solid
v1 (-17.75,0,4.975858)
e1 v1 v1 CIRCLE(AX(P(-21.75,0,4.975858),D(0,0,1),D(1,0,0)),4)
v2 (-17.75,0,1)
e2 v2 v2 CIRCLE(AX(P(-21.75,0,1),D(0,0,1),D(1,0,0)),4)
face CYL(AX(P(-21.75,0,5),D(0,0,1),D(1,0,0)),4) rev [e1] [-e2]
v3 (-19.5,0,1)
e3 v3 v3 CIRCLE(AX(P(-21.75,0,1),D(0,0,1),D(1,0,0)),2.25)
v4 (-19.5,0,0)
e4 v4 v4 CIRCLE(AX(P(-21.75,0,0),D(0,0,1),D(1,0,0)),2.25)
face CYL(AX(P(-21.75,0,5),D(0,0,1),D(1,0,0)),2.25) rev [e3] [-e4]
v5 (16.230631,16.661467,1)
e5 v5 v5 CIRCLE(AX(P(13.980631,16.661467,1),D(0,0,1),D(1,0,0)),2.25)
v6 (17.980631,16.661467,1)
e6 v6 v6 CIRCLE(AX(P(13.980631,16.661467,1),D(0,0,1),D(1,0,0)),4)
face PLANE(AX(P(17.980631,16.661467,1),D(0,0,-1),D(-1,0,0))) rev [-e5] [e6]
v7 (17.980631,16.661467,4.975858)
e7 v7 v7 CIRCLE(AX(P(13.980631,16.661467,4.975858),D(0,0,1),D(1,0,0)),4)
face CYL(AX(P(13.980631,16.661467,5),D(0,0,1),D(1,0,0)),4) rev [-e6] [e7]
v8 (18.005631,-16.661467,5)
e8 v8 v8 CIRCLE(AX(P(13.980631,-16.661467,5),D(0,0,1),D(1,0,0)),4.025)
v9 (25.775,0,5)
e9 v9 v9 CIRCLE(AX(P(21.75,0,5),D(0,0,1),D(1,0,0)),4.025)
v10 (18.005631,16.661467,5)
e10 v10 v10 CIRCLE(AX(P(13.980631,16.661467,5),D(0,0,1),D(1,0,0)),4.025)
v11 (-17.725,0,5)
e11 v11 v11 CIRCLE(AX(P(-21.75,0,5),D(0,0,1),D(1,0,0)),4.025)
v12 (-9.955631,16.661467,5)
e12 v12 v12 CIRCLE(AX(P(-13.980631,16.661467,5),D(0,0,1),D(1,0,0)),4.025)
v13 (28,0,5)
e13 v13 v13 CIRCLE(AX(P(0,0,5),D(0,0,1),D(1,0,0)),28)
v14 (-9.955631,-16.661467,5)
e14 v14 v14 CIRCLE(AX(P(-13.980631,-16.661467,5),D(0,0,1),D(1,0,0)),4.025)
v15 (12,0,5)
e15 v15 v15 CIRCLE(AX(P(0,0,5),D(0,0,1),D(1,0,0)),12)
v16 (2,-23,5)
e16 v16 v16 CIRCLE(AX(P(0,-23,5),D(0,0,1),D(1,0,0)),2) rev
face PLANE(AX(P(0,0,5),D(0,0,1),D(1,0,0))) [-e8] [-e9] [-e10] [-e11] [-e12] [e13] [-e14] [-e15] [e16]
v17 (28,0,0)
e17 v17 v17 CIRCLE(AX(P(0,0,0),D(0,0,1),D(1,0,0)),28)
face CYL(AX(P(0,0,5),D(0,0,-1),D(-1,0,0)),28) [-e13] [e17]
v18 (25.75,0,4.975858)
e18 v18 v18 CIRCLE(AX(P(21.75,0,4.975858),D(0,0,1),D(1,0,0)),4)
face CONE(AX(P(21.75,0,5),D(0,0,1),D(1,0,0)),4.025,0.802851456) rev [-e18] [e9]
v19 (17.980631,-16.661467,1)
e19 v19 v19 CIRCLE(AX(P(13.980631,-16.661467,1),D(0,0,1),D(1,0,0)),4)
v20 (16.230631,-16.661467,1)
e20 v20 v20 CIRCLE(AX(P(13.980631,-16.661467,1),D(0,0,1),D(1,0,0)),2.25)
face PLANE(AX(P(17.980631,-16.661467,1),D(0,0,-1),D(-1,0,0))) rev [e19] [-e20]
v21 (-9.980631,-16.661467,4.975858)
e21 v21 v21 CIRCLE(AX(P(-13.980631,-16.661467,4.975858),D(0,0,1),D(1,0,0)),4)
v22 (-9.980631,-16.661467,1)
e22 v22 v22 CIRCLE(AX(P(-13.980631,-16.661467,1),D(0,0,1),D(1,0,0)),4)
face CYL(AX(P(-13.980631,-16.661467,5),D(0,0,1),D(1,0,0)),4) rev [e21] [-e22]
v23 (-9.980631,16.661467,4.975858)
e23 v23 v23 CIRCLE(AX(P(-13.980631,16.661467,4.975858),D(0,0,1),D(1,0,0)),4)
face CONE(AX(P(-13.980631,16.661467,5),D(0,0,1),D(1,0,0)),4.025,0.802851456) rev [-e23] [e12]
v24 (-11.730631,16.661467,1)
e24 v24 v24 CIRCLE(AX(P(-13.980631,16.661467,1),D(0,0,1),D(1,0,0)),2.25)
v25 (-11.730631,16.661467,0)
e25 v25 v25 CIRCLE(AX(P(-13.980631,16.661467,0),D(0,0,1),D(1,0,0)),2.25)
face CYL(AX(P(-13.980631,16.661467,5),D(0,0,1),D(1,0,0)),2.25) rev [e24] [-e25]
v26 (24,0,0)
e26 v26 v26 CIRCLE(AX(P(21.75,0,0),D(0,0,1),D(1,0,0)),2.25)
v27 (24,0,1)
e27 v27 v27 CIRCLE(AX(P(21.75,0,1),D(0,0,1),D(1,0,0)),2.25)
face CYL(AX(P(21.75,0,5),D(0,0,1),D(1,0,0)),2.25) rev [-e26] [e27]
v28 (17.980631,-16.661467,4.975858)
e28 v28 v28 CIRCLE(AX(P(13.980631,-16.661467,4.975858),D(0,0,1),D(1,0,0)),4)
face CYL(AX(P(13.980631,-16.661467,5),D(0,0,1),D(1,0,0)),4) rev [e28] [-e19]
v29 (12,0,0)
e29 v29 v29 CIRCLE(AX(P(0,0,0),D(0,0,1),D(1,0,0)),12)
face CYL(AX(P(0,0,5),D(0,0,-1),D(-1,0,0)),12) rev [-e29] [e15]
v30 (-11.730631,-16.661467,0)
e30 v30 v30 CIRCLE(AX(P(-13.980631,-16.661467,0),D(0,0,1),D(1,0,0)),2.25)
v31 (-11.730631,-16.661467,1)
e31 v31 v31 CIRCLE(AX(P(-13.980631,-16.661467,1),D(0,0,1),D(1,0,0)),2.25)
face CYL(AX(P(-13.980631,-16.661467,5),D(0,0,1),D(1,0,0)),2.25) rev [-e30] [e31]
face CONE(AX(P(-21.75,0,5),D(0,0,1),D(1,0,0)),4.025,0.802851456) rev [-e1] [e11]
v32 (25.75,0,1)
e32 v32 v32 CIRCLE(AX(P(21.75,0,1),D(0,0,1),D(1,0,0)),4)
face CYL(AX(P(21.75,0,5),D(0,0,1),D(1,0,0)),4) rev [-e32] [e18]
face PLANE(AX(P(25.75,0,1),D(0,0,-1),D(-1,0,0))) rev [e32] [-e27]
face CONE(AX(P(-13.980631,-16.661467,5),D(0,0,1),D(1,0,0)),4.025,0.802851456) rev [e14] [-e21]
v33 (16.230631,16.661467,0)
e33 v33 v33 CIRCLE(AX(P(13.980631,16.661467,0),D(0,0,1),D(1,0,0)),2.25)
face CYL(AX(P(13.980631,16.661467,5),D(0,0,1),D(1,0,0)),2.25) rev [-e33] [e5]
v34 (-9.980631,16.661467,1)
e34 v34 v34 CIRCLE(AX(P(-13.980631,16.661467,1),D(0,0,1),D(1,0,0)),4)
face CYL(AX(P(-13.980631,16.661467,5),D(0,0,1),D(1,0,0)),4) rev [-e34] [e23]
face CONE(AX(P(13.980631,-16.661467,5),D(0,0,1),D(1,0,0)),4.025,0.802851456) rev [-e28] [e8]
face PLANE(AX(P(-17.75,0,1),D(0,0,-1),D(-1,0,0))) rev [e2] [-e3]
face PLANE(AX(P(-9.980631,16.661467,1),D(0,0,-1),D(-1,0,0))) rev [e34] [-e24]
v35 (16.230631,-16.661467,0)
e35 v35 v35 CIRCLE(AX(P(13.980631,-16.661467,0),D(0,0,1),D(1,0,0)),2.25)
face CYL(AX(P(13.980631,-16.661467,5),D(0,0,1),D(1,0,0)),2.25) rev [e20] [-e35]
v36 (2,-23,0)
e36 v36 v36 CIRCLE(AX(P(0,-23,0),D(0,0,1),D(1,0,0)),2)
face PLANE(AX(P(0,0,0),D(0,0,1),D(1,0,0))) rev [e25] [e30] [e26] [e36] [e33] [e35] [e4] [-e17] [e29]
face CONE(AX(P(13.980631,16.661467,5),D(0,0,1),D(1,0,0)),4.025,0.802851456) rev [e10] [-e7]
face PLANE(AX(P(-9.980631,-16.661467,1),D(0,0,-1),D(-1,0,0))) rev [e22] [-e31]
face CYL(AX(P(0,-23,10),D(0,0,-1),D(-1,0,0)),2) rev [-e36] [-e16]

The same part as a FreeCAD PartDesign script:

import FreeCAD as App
import Part
import Sketcher
from FreeCAD import Vector
Q = App.Units.Quantity


def add_polygon(sketch, points):
    """Adds a closed chain of lines whose ends are joined by coincident constraints."""
    first, n = sketch.GeometryCount, len(points)
    for a, b in zip(points, points[1:] + points[:1]):
        sketch.addGeometry(Part.LineSegment(App.Vector(*a, 0), App.Vector(*b, 0)), False)
    for i in range(n):
        sketch.addConstraint(Sketcher.Constraint("Coincident", first + i, 2, first + (i + 1) % n, 1))

doc = App.newDocument("Part")
body = doc.addObject("PartDesign::Body", "Body")

# Sketch on XY plane
sketch1 = body.newObject("Sketcher::SketchObject", "Sketch")
sketch1.AttachmentSupport = (doc.getObject("XY_Plane"), [""])
sketch1.MapMode = "FlatFace"
sketch1.addGeometry([
    Part.Circle(Vector(0, 0, 0), Vector(0, 0, 1), 28),
    Part.Circle(Vector(0, 0, 0), Vector(0, 0, 1), 12),
], False)
sketch1.addConstraint([
    Sketcher.Constraint("Coincident", 0, 3, -1, 1),
    Sketcher.Constraint("Coincident", 1, 3, -1, 1),
    Sketcher.Constraint("Diameter", 0, 56.0),
    Sketcher.Constraint("Diameter", 1, 24.0),
])
pad1 = body.newObject("PartDesign::Pad", "Pad")
pad1.Profile = sketch1
pad1.Length = 5

# Sketch on YZ plane
sketch2 = body.newObject("Sketcher::SketchObject", "Sketch001")
sketch2.AttachmentSupport = (doc.getObject("YZ_Plane"), [""])
sketch2.MapMode = "FlatFace"
sketch2.AttachmentOffset = App.Placement(Vector(0, 0, 21.75), App.Rotation())
add_polygon(sketch2, [(0, 0), (0, 5), (-4.025, 5), (-4, 4.975858), (-4, 1), (-2.25, 1), (-2.25, 0)])  # lines 0-6
sketch2.addConstraint([
    Sketcher.Constraint("Vertical", 0),
    Sketcher.Constraint("Horizontal", 1),
    Sketcher.Constraint("Vertical", 3),
    Sketcher.Constraint("Horizontal", 4),
    Sketcher.Constraint("Vertical", 5),
    Sketcher.Constraint("Horizontal", 6),
    Sketcher.Constraint("Coincident", 6, 2, -1, 1),
    Sketcher.Constraint("DistanceY", 0, 1, 0, 2, 5.0),
    Sketcher.Constraint("DistanceY", 5, 2, 5, 1, 1.0),
    Sketcher.Constraint("Angle", 2, Q("-44 deg")),
    Sketcher.Constraint("DistanceX", 2, 2, -1, 1, 4.0),
    Sketcher.Constraint("DistanceX", 4, 1, 4, 2, 1.75),
    Sketcher.Constraint("DistanceX", 1, 2, 1, 1, 4.025),
])
groove = body.newObject("PartDesign::Groove", "Groove")
groove.Profile = sketch2
groove.ReferenceAxis = (sketch2, ["V_Axis"])
groove.Angle = 360
doc.recompute()

datumline = body.newObject("PartDesign::Line", "DatumLine")
datumline.Placement = App.Placement(Vector(0, 0, 0), App.Rotation(Vector(0, 0, 1), Vector(-0.906307787, 0.422618262, 0)))
linearpattern = body.newObject("PartDesign::LinearPattern", "LinearPattern")
linearpattern.Originals = [groove]
linearpattern.Direction = (datumline, [""])
linearpattern.Mode = "offset"
linearpattern.Offset = 39.424389
linearpattern.Occurrences = 2
body.Tip = linearpattern
doc.recompute()

datumline2 = body.newObject("PartDesign::Line", "DatumLine001")
datumline2.Placement = App.Placement(Vector(0, 0, 0), App.Rotation(Vector(0, 0, 1), Vector(-0.906307787, 0.422618262, 0)))
linearpattern2 = body.newObject("PartDesign::LinearPattern", "LinearPattern001")
linearpattern2.Originals = [groove]
linearpattern2.Direction = (datumline2, [""])
linearpattern2.Mode = "offset"
linearpattern2.Offset = 39.424389
linearpattern2.Occurrences = 2
body.Tip = linearpattern2
doc.recompute()

datumline3 = body.newObject("PartDesign::Line", "DatumLine002")
datumline3.Placement = App.Placement(Vector(0, 0, 0), App.Rotation(Vector(0, 0, 1), Vector(-0.422618262, -0.906307787, 0)))
linearpattern3 = body.newObject("PartDesign::LinearPattern", "LinearPattern002")
linearpattern3.Originals = [groove]
linearpattern3.Direction = (datumline3, [""])
linearpattern3.Mode = "offset"
linearpattern3.Offset = 18.383894
linearpattern3.Occurrences = 2
body.Tip = linearpattern3
doc.recompute()

datumline4 = body.newObject("PartDesign::Line", "DatumLine003")
datumline4.Placement = App.Placement(Vector(0, 0, 0), App.Rotation(Vector(0, 0, 1), Vector(-0.906307787, -0.422618262, 0)))
linearpattern4 = body.newObject("PartDesign::LinearPattern", "LinearPattern003")
linearpattern4.Originals = [groove]
linearpattern4.Direction = (datumline4, [""])
linearpattern4.Mode = "offset"
linearpattern4.Offset = 39.424389
linearpattern4.Occurrences = 2
body.Tip = linearpattern4
doc.recompute()

datumline5 = body.newObject("PartDesign::Line", "DatumLine004")
datumline5.Placement = App.Placement(Vector(0, 0, 0), App.Rotation(Vector(0, 0, 1), Vector(-0.422618262, 0.906307787, 0)))
linearpattern5 = body.newObject("PartDesign::LinearPattern", "LinearPattern004")
linearpattern5.Originals = [groove]
linearpattern5.Direction = (datumline5, [""])
linearpattern5.Mode = "offset"
linearpattern5.Offset = 18.383894
linearpattern5.Occurrences = 2
body.Tip = linearpattern5
doc.recompute()

linearpattern6 = body.newObject("PartDesign::LinearPattern", "LinearPattern005")
linearpattern6.Originals = [groove]
linearpattern6.Direction = (doc.getObject("X_Axis"), [""])
linearpattern6.Mode = "offset"
linearpattern6.Offset = 43.5
linearpattern6.Occurrences = 2
linearpattern6.Reversed = True
body.Tip = linearpattern6

# Sketch on XY plane
sketch3 = body.newObject("Sketcher::SketchObject", "Sketch002")
sketch3.AttachmentSupport = (doc.getObject("XY_Plane"), [""])
sketch3.MapMode = "FlatFace"
sketch3.addGeometry(Part.Circle(Vector(0, -23, 0), Vector(0, 0, 1), 2), False)
sketch3.addConstraint([
    Sketcher.Constraint("PointOnObject", 0, 3, -2),
    Sketcher.Constraint("Diameter", 0, 4.0),
    Sketcher.Constraint("DistanceY", 0, 3, -1, 1, 23.0),
])
pocket1 = body.newObject("PartDesign::Pocket", "Pocket")
pocket1.Profile = sketch3
pocket1.Length = 10
pocket1.Reversed = True

doc.recompute()
